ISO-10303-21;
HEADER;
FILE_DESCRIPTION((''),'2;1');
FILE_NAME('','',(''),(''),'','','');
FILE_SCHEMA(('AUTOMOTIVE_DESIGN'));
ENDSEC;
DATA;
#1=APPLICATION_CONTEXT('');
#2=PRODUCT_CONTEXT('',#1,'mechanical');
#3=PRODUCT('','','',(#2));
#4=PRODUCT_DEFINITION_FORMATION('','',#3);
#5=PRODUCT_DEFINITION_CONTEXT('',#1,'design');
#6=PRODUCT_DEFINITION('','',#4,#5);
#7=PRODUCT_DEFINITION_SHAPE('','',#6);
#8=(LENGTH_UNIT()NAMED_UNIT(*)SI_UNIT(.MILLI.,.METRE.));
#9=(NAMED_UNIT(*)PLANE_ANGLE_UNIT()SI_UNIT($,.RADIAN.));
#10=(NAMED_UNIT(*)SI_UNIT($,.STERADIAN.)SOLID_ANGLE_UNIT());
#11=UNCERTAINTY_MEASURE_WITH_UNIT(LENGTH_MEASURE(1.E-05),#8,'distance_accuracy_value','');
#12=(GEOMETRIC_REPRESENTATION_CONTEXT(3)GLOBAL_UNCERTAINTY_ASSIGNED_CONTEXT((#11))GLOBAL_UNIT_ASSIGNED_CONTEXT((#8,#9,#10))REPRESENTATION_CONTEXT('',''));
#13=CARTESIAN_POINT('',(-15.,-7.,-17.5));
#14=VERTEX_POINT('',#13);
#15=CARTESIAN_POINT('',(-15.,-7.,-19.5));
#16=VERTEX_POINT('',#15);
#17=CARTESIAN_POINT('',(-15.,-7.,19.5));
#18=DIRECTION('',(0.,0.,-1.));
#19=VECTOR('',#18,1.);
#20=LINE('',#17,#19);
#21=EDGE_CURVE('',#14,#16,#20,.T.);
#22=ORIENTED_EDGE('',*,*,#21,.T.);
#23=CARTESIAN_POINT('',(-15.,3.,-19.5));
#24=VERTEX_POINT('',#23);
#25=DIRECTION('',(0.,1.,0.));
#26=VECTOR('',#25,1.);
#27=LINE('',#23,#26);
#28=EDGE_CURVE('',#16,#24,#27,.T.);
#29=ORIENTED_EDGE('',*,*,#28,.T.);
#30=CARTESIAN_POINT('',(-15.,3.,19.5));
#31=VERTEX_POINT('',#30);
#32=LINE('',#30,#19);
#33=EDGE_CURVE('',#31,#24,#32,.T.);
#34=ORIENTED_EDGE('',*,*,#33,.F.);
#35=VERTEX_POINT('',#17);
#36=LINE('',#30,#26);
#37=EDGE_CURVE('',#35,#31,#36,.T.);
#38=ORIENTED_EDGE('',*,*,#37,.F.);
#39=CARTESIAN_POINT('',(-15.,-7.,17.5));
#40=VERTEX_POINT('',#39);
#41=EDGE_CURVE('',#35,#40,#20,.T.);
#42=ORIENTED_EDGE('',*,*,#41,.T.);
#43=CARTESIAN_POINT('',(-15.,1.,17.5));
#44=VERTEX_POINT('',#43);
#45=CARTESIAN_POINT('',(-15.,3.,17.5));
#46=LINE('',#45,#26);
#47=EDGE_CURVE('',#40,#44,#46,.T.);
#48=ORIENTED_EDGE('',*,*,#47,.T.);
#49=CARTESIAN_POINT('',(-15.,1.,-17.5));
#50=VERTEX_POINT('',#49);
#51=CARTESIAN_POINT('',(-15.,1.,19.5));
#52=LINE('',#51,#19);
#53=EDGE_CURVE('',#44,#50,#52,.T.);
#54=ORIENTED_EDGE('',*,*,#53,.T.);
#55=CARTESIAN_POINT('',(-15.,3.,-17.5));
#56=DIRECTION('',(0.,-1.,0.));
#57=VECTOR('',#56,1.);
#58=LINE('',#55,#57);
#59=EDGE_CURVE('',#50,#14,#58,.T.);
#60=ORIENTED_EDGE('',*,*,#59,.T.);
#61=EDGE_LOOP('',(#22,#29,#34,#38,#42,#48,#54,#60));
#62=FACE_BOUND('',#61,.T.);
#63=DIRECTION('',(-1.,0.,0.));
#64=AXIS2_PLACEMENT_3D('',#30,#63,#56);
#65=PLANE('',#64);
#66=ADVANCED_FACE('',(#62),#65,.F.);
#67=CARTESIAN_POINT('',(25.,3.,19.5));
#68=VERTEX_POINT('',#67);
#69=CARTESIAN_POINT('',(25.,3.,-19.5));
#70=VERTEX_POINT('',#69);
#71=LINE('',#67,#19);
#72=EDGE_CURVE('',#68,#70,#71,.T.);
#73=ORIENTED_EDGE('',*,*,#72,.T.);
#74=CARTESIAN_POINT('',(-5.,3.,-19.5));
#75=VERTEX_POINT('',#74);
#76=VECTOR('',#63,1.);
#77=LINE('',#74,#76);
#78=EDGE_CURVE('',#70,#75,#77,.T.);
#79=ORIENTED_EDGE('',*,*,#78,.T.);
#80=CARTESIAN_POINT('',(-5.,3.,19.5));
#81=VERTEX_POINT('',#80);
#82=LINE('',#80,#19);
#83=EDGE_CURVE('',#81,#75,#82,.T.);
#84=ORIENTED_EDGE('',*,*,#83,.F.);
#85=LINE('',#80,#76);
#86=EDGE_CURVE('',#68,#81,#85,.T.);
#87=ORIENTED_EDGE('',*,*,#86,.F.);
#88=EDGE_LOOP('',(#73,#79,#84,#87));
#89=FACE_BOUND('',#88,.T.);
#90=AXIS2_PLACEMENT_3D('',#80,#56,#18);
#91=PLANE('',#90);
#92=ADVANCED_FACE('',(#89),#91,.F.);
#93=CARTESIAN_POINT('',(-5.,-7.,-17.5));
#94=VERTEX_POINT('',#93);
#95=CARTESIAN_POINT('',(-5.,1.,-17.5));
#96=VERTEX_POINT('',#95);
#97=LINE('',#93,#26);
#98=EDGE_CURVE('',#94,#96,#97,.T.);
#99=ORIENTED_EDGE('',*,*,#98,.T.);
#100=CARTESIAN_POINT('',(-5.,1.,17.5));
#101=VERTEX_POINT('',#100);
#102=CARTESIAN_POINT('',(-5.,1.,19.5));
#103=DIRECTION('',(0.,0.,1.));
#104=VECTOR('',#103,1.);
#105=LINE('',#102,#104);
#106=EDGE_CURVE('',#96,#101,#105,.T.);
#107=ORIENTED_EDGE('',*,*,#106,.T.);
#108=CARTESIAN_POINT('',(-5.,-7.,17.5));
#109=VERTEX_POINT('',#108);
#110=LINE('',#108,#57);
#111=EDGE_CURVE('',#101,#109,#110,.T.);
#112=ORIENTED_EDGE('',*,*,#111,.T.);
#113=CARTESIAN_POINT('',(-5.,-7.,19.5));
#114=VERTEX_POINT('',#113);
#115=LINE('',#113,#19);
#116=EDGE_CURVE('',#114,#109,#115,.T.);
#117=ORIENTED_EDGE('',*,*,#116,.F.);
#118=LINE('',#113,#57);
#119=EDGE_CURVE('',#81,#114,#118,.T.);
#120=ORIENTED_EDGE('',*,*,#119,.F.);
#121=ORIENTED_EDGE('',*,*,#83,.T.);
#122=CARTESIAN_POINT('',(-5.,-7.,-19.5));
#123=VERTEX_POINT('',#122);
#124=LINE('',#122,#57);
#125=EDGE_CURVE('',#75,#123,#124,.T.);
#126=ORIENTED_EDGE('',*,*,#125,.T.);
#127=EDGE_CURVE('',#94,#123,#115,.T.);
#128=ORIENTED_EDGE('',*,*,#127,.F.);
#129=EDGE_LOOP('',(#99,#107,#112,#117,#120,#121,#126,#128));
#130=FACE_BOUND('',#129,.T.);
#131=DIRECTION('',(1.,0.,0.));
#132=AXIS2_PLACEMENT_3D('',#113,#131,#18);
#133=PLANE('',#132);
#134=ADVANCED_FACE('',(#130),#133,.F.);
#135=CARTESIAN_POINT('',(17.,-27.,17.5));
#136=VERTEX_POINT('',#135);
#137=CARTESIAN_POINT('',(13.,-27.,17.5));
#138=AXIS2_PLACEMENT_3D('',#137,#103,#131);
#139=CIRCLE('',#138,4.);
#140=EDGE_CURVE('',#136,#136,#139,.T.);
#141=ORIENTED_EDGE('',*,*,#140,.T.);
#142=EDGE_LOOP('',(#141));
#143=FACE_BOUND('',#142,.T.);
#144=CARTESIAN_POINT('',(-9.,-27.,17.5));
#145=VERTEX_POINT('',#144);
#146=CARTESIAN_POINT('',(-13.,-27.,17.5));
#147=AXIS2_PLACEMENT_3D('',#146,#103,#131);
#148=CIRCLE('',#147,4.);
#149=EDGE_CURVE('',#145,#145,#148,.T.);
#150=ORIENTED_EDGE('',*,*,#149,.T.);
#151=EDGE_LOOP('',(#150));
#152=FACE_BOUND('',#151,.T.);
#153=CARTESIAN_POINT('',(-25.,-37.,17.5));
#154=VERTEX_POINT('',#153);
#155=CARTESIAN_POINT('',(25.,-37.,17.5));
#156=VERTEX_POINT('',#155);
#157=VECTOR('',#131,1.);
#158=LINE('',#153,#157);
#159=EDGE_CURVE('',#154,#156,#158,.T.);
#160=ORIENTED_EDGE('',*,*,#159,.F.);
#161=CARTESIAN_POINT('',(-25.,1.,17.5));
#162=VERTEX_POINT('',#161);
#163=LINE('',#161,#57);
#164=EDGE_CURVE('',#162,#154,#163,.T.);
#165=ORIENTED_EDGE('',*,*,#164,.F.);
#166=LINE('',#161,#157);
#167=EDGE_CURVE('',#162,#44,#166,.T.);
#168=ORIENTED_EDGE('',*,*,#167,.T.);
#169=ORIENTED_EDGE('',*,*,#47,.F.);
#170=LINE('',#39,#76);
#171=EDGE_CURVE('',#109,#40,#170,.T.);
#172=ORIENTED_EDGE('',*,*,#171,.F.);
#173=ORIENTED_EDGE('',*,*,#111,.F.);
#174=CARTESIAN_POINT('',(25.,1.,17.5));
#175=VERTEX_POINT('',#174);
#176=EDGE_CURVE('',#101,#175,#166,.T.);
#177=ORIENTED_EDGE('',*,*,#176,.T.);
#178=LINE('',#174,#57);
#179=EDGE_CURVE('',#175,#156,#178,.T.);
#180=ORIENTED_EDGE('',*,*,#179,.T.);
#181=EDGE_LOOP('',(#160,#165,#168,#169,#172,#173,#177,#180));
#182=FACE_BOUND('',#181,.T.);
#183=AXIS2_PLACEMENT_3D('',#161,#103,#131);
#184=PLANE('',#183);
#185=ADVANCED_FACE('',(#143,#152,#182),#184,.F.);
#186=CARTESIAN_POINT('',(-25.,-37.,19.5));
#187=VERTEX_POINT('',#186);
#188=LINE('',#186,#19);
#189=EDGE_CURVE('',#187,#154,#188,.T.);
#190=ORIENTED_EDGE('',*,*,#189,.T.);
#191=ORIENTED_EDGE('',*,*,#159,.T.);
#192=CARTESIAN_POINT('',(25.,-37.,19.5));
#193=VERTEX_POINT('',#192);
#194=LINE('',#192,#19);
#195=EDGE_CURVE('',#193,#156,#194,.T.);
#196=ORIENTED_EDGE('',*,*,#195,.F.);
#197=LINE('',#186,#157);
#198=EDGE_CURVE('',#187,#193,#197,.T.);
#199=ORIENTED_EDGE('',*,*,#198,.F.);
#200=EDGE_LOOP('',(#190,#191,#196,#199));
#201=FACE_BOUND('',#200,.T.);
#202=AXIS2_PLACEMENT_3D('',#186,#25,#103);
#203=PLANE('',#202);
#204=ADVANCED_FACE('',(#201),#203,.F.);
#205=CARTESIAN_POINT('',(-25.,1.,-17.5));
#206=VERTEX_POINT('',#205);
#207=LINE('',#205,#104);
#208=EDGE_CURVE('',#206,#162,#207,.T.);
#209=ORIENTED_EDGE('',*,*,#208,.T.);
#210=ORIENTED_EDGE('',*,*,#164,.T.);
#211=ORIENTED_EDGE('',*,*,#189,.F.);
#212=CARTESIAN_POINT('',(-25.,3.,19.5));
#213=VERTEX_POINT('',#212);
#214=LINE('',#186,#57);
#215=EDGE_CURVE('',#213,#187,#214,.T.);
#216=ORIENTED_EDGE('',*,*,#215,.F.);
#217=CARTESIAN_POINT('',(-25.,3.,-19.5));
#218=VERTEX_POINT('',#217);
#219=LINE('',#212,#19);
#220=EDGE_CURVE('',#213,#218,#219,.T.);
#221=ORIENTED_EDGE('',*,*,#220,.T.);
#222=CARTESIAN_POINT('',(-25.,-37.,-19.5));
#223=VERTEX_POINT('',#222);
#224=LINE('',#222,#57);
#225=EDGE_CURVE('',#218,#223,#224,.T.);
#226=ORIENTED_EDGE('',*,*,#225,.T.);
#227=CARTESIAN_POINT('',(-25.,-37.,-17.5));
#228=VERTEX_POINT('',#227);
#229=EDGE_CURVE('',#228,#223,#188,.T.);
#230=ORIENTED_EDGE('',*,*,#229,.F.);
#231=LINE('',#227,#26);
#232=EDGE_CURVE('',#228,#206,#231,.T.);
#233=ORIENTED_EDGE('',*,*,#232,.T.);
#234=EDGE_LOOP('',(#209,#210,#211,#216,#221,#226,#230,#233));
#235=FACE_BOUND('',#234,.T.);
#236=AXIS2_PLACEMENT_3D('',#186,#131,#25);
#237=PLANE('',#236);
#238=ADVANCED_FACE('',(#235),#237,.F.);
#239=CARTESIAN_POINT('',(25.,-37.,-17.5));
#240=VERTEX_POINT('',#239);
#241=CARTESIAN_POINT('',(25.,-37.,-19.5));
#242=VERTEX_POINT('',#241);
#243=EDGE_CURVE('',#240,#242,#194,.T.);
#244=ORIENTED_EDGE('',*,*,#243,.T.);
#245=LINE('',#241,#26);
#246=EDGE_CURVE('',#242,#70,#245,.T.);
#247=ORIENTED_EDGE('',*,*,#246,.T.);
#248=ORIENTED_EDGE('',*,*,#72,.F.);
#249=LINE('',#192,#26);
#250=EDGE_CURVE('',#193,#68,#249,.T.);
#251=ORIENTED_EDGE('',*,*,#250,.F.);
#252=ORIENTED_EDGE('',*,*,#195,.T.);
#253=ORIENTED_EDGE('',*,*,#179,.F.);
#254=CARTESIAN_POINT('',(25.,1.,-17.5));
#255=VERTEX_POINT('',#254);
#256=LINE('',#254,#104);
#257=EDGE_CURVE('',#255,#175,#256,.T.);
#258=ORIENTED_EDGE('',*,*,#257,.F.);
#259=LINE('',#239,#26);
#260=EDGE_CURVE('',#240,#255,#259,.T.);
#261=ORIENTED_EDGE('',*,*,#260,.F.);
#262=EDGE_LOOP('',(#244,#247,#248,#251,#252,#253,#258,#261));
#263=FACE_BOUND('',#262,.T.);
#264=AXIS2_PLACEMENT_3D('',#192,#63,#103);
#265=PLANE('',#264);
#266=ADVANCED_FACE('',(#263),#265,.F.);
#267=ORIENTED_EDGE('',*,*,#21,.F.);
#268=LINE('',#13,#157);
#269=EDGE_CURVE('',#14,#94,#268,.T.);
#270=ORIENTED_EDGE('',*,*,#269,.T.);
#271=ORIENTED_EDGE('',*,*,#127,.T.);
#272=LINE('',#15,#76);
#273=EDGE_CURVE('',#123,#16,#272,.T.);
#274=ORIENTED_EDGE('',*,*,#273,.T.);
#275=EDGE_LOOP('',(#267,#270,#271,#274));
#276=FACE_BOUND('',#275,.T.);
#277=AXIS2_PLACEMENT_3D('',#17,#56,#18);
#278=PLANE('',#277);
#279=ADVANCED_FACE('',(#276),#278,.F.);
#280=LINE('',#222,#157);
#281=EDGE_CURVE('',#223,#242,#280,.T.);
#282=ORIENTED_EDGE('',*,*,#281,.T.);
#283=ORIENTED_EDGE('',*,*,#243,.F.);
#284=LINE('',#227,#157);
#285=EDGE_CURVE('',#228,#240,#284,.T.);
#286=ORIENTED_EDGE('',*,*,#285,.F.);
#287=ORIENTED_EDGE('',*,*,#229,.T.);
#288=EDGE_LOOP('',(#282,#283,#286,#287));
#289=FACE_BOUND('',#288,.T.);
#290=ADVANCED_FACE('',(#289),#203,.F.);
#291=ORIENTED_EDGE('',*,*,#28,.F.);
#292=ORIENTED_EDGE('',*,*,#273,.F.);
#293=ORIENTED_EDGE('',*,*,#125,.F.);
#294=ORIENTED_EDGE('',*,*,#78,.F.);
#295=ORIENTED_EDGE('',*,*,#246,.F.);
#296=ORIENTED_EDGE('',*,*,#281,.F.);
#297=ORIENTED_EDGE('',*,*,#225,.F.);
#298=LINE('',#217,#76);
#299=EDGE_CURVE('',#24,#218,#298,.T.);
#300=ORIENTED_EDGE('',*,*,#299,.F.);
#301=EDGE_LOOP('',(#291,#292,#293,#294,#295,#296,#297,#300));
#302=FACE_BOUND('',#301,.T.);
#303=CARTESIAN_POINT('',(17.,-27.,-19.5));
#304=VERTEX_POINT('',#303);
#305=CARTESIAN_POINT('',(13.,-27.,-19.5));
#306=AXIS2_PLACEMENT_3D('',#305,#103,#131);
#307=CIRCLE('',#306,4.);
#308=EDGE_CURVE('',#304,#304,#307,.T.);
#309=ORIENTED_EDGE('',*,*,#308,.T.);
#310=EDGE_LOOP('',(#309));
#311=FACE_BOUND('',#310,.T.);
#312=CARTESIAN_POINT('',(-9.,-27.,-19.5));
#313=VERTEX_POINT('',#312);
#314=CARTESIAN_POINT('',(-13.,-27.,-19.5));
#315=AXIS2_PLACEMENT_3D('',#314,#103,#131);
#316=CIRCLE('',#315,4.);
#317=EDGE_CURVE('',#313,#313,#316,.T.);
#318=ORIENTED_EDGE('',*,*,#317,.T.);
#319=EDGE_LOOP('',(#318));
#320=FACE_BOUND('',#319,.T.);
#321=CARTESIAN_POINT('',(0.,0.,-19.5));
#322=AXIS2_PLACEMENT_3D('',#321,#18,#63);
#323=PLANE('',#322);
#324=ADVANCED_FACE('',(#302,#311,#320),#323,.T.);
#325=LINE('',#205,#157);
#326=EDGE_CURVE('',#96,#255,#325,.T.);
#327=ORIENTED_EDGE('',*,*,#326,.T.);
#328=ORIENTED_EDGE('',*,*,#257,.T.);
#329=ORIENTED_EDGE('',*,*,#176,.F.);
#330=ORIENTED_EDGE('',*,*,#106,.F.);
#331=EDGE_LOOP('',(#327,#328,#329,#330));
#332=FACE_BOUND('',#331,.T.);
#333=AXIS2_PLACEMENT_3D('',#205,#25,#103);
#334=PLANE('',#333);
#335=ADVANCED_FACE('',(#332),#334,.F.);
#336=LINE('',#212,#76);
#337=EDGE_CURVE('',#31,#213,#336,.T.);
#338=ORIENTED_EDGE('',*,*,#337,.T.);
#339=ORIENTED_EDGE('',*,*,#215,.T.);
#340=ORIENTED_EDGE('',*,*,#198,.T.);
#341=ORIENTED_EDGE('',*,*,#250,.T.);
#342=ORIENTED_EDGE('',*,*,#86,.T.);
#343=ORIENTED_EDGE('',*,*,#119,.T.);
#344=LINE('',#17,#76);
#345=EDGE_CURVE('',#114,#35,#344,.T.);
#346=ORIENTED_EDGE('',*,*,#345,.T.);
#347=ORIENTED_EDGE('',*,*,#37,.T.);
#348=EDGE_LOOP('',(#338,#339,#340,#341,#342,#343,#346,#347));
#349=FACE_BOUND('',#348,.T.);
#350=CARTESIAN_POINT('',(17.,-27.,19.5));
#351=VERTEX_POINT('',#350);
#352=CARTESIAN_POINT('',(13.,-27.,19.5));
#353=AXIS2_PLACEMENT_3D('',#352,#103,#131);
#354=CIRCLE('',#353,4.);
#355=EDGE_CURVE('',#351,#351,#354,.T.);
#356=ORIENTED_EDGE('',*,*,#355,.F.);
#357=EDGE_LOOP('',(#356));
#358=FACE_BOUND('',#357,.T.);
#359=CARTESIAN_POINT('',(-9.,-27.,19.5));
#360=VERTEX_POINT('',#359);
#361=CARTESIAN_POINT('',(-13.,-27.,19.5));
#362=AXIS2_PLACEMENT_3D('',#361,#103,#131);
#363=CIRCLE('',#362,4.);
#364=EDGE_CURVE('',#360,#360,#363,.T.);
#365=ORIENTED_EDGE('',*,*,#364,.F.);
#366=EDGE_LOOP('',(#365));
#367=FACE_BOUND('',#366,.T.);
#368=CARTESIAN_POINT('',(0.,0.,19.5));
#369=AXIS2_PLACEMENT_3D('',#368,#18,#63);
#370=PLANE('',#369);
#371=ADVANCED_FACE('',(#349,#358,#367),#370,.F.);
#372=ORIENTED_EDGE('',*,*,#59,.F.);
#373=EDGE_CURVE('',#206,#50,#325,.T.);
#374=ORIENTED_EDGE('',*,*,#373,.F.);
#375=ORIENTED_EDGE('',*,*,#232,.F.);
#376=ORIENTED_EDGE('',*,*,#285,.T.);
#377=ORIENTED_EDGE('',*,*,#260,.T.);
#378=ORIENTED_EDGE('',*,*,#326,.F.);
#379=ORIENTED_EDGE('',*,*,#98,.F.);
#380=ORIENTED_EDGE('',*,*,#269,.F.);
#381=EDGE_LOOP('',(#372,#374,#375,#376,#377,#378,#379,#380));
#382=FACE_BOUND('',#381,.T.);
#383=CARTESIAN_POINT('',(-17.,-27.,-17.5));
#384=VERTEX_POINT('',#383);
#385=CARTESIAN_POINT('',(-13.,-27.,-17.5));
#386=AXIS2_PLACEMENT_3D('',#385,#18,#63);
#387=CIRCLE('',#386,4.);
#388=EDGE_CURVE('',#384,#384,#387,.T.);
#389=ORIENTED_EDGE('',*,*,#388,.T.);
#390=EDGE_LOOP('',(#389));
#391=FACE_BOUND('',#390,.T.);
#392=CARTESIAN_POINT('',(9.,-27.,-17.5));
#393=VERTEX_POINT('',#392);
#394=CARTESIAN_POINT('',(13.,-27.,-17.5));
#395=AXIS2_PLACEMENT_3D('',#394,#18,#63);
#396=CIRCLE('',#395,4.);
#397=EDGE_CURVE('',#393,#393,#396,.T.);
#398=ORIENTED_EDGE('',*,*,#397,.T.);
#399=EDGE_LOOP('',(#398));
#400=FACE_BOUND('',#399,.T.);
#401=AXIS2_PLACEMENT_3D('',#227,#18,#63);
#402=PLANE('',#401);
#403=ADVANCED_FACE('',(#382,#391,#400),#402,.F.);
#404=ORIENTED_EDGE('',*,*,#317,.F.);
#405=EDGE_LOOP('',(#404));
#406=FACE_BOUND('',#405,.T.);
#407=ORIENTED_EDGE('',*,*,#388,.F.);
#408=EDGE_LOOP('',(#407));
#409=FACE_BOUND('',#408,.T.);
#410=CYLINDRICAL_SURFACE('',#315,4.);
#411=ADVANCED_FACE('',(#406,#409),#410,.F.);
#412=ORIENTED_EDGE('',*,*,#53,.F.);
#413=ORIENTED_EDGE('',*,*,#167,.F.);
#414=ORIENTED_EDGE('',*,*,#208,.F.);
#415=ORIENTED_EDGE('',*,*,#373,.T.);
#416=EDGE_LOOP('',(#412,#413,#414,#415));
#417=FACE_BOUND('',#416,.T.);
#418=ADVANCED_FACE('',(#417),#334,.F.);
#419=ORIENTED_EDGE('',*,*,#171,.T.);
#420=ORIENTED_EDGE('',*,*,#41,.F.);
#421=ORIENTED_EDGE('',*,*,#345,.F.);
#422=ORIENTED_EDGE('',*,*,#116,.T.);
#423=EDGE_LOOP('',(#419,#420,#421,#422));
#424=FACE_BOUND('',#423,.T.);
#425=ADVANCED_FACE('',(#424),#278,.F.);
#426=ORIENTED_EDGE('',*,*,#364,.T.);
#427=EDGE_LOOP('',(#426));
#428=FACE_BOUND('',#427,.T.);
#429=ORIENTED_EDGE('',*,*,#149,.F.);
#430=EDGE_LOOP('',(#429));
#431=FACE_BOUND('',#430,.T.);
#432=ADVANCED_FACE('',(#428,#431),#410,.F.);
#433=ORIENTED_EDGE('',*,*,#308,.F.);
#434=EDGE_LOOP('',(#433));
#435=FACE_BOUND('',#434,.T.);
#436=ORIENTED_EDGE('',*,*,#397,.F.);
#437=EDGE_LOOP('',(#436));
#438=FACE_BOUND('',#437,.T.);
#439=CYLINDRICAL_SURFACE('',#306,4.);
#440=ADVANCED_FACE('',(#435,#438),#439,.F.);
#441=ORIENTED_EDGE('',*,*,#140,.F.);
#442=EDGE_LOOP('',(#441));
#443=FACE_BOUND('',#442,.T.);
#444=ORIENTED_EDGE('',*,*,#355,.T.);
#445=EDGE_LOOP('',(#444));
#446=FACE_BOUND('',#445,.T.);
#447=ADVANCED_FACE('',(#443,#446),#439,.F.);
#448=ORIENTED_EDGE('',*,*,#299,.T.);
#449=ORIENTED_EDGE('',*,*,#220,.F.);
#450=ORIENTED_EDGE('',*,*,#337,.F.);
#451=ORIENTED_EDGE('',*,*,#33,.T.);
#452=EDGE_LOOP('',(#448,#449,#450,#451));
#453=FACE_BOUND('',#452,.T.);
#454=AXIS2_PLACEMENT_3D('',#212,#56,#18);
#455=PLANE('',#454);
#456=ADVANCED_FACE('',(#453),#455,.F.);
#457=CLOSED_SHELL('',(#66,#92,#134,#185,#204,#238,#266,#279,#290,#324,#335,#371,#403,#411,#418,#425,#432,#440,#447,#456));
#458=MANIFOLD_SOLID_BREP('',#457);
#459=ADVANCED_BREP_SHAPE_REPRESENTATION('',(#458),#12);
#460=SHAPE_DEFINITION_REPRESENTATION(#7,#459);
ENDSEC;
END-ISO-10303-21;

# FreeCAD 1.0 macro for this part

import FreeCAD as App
import Part
import Sketcher
from FreeCAD import Vector


def add_polygon(sketch, points):
    """Adds a closed chain of lines whose ends are joined by coincident constraints."""
    first, n = sketch.GeometryCount, len(points)
    for a, b in zip(points, points[1:] + points[:1]):
        sketch.addGeometry(Part.LineSegment(App.Vector(*a, 0), App.Vector(*b, 0)), False)
    for i in range(n):
        sketch.addConstraint(Sketcher.Constraint("Coincident", first + i, 2, first + (i + 1) % n, 1))

doc = App.newDocument("Part")
body = doc.addObject("PartDesign::Body", "Body")

# Sketch on XY plane
sketch1 = doc.addObject("Sketcher::SketchObject", "Sketch")
body.addObject(sketch1)
sketch1.AttachmentSupport = (doc.XY_Plane, [""])
sketch1.MapMode = "FlatFace"
add_polygon(sketch1, [(-25, -37), (25, -37), (25, 3), (-5, 3), (-5, -7), (-15, -7), (-15, 3), (-25, 3)])  # lines 0-7
sketch1.addConstraint([
    Sketcher.Constraint("Horizontal", 0),
    Sketcher.Constraint("Vertical", 1),
    Sketcher.Constraint("Horizontal", 2),
    Sketcher.Constraint("Vertical", 3),
    Sketcher.Constraint("Horizontal", 4),
    Sketcher.Constraint("Vertical", 5),
    Sketcher.Constraint("Horizontal", 6),
    Sketcher.Constraint("Vertical", 7),
    Sketcher.Constraint("Symmetric", 1, 2, 6, 2, -2),
    Sketcher.Constraint("Equal", 4, 6),
    Sketcher.Constraint("Equal", 6, 3),
    Sketcher.Constraint("DistanceX", 0, 1, 0, 2, 50.0),
    Sketcher.Constraint("DistanceX", 2, 2, 2, 1, 30.0),
    Sketcher.Constraint("DistanceY", 1, 1, 1, 2, 40.0),
    Sketcher.Constraint("DistanceY", 0, 2, -1, 1, 37.0),
])
pad1 = doc.addObject("PartDesign::Pad", "Pad")
body.addObject(pad1)
pad1.Profile = sketch1
pad1.Length = 39
pad1.Midplane = True

# Sketch on YZ plane
sketch2 = doc.addObject("Sketcher::SketchObject", "Sketch001")
body.addObject(sketch2)
sketch2.AttachmentSupport = (doc.YZ_Plane, [""])
sketch2.MapMode = "FlatFace"
sketch2.AttachmentOffset = App.Placement(Vector(0, 0, 25), App.Rotation())
add_polygon(sketch2, [(1, 17.5), (-37, 17.5), (-37, -17.5), (1, -17.5)])  # lines 0-3
sketch2.addConstraint([
    Sketcher.Constraint("Horizontal", 0),
    Sketcher.Constraint("Vertical", 1),
    Sketcher.Constraint("Horizontal", 2),
    Sketcher.Constraint("Vertical", 3),
    Sketcher.Constraint("DistanceX", 0, 2, 0, 1, 38.0),
    Sketcher.Constraint("DistanceY", 1, 2, 1, 1, 35.0),
    Sketcher.Constraint("DistanceX", 0, 2, -1, 1, 37.0),
    Sketcher.Constraint("DistanceY", -1, 1, 0, 2, 17.5),
])
pocket1 = doc.addObject("PartDesign::Pocket", "Pocket")
body.addObject(pocket1)
pocket1.Profile = sketch2
pocket1.Type = "ThroughAll"

# Sketch on XY plane
sketch3 = doc.addObject("Sketcher::SketchObject", "Sketch002")
body.addObject(sketch3)
sketch3.AttachmentSupport = (doc.XY_Plane, [""])
sketch3.MapMode = "FlatFace"
sketch3.AttachmentOffset = App.Placement(Vector(0, 0, 19.5), App.Rotation())
sketch3.addGeometry([
    Part.Circle(Vector(-13, -27, 0), Vector(0, 0, 1), 4),
    Part.Circle(Vector(13, -27, 0), Vector(0, 0, 1), 4),
], False)
sketch3.addConstraint([
    Sketcher.Constraint("Equal", 0, 1),
    Sketcher.Constraint("Symmetric", 0, 3, 1, 3, -2),
    Sketcher.Constraint("Diameter", 0, 8.0),
    Sketcher.Constraint("DistanceX", 0, 3, -1, 1, 13.0),
    Sketcher.Constraint("DistanceY", 0, 3, -1, 1, 27.0),
])
pocket2 = doc.addObject("PartDesign::Pocket", "Pocket001")
body.addObject(pocket2)
pocket2.Profile = sketch3
pocket2.Type = "ThroughAll"

doc.recompute()
